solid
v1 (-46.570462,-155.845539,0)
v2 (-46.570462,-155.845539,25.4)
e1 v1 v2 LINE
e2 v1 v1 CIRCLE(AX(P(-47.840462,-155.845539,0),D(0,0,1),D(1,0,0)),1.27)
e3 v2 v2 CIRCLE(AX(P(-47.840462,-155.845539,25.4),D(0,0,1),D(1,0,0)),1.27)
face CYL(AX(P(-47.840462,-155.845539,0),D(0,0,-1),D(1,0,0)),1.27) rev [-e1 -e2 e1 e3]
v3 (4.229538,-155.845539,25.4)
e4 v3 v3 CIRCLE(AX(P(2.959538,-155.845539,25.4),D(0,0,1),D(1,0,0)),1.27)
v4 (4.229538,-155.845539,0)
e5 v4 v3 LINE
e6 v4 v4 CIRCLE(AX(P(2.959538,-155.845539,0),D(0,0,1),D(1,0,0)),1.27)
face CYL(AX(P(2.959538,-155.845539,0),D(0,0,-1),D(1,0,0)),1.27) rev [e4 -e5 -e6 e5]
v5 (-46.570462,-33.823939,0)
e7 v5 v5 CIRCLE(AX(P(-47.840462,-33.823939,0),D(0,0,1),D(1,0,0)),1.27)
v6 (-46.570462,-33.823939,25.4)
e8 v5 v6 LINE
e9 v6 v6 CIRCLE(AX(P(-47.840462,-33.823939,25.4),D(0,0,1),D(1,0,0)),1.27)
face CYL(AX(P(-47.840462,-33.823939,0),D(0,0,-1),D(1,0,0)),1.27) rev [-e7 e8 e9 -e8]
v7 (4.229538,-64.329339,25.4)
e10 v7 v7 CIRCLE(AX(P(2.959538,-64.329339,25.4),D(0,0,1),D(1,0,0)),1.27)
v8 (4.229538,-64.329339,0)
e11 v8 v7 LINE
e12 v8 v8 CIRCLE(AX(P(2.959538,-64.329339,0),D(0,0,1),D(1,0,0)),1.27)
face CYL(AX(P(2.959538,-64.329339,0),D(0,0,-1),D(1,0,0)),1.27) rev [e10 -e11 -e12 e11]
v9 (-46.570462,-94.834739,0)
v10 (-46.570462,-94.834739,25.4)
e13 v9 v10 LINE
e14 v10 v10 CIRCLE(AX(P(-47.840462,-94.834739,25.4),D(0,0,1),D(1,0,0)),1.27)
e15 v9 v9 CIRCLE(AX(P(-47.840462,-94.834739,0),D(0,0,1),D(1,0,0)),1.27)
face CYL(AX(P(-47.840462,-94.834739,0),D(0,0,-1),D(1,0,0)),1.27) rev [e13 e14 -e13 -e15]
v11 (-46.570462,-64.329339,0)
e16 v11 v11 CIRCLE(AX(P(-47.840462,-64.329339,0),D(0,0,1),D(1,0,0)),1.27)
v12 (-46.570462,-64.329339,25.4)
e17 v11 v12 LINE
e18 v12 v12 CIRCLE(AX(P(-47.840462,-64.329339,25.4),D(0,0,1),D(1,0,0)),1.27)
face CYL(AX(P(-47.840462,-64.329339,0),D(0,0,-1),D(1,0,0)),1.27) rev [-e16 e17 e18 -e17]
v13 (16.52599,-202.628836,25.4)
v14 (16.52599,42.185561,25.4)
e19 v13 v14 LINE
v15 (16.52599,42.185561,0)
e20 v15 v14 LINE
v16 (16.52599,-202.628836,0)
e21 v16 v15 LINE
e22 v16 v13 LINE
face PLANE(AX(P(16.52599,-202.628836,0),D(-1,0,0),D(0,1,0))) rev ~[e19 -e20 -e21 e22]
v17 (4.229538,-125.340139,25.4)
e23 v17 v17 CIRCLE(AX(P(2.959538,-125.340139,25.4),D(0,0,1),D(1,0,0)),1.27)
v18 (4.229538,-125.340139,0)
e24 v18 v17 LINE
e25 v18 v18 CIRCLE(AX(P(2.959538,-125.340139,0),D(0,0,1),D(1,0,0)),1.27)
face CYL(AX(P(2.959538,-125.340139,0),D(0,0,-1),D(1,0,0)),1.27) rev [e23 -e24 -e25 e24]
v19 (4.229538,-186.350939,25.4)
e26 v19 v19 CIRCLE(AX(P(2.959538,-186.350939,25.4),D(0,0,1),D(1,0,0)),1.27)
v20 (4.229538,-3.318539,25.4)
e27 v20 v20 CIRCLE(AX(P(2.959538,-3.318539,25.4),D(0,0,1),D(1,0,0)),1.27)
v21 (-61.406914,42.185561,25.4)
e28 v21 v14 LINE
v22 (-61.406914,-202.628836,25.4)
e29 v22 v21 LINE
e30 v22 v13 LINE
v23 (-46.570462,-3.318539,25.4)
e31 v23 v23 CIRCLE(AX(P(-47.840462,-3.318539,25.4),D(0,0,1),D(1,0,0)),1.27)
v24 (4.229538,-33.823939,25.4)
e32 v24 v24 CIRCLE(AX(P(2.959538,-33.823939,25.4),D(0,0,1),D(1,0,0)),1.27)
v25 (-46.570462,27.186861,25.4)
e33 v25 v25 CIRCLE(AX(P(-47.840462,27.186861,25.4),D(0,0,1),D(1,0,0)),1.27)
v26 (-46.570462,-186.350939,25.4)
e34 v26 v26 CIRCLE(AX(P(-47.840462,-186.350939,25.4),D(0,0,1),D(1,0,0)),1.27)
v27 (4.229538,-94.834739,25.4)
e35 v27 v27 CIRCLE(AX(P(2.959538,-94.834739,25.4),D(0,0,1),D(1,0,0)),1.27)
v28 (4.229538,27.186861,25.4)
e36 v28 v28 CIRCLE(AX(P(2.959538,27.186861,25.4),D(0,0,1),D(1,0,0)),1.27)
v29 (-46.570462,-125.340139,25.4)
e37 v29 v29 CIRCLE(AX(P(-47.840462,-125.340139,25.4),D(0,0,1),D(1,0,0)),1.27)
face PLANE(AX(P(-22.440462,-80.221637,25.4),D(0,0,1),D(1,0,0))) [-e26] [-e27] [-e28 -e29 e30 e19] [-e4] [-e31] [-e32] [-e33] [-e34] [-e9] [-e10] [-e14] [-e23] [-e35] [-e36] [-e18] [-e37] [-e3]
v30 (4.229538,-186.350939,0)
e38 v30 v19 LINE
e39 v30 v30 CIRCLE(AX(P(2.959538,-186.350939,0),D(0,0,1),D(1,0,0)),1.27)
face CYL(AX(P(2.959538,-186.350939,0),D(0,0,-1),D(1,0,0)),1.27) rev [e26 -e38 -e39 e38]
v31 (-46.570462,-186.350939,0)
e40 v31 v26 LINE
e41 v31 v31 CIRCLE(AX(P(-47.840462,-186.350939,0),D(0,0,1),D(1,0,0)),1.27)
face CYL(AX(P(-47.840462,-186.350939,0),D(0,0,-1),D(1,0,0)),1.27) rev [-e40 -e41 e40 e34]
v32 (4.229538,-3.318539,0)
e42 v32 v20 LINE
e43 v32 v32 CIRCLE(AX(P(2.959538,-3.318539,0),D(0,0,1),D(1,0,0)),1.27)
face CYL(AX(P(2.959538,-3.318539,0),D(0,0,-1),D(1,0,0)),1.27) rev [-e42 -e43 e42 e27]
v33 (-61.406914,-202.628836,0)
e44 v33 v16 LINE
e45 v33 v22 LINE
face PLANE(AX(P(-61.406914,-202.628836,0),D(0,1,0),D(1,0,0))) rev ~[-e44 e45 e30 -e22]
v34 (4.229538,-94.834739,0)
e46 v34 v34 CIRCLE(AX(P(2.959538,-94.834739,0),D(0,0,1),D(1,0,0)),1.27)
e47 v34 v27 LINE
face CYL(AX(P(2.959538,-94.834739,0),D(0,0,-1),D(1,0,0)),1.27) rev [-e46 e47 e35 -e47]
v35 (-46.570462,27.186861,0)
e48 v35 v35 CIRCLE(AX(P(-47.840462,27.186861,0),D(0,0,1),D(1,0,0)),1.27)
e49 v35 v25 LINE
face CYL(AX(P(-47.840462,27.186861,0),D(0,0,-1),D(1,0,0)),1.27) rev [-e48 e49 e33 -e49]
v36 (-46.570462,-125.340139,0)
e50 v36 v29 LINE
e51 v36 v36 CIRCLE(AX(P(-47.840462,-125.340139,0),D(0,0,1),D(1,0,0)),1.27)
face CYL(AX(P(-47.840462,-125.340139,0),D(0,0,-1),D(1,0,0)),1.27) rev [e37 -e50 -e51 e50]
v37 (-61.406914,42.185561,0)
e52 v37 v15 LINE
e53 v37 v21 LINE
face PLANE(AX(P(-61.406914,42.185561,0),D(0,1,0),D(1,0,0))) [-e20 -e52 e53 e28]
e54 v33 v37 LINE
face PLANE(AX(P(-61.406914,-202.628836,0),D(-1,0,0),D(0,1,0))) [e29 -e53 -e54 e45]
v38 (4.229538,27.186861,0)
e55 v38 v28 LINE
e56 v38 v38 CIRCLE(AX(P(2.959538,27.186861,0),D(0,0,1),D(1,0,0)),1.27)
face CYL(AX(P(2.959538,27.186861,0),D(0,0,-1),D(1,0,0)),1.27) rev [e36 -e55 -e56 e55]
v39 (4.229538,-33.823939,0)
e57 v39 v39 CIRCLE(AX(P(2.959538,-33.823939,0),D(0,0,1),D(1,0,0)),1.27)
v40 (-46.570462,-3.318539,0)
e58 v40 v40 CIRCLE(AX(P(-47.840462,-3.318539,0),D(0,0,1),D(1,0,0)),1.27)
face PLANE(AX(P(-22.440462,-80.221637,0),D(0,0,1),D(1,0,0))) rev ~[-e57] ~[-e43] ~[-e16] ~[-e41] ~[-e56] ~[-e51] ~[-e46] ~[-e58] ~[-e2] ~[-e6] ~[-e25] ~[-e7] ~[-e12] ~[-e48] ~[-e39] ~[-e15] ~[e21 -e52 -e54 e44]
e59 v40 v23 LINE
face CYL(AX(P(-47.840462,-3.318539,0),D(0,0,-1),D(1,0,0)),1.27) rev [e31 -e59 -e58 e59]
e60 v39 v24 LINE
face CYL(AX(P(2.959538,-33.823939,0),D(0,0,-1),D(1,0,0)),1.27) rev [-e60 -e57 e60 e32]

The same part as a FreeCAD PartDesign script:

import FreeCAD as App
import Part
import Sketcher
from FreeCAD import Vector
Q = App.Units.Quantity


def add_polygon(sketch, points):
    """Adds a closed chain of lines whose ends are joined by coincident constraints."""
    first, n = sketch.GeometryCount, len(points)
    for a, b in zip(points, points[1:] + points[:1]):
        sketch.addGeometry(Part.LineSegment(App.Vector(*a, 0), App.Vector(*b, 0)), False)
    for i in range(n):
        sketch.addConstraint(Sketcher.Constraint("Coincident", first + i, 2, first + (i + 1) % n, 1))

doc = App.newDocument("Part")
body = doc.addObject("PartDesign::Body", "Body")

sketch1 = body.newObject("Sketcher::SketchObject", "Sketch")
sketch1.AttachmentSupport = (doc.getObject("XY_Plane"), [""])
sketch1.MapMode = "FlatFace"
add_polygon(sketch1, [(-61.4, 42.2), (-61.4, -202.6), (16.5, -202.6), (16.5, 42.2)])
sketch1.addGeometry(Part.Circle(Vector(-47.8, -186.4, 0), Vector(0, 0, 1), 1.3), False)
sketch1.addGeometry(Part.Circle(Vector(-47.8, -155.8, 0), Vector(0, 0, 1), 1.3), False)
sketch1.addGeometry(Part.Circle(Vector(-47.8, -125.3, 0), Vector(0, 0, 1), 1.3), False)
sketch1.addGeometry(Part.Circle(Vector(-47.8, -94.8, 0), Vector(0, 0, 1), 1.3), False)
sketch1.addGeometry(Part.Circle(Vector(3, -186.4, 0), Vector(0, 0, 1), 1.3), False)
sketch1.addGeometry(Part.Circle(Vector(3, -155.8, 0), Vector(0, 0, 1), 1.3), False)
sketch1.addGeometry(Part.Circle(Vector(3, -125.3, 0), Vector(0, 0, 1), 1.3), False)
sketch1.addGeometry(Part.Circle(Vector(3, -94.8, 0), Vector(0, 0, 1), 1.3), False)
sketch1.addGeometry(Part.Circle(Vector(-47.8, -64.3, 0), Vector(0, 0, 1), 1.3), False)
sketch1.addGeometry(Part.Circle(Vector(-47.8, -33.8, 0), Vector(0, 0, 1), 1.3), False)
sketch1.addGeometry(Part.Circle(Vector(-47.8, -3.3, 0), Vector(0, 0, 1), 1.3), False)
sketch1.addGeometry(Part.Circle(Vector(-47.8, 27.2, 0), Vector(0, 0, 1), 1.3), False)
sketch1.addGeometry(Part.Circle(Vector(3, -64.3, 0), Vector(0, 0, 1), 1.3), False)
sketch1.addGeometry(Part.Circle(Vector(3, -33.8, 0), Vector(0, 0, 1), 1.3), False)
sketch1.addGeometry(Part.Circle(Vector(3, -3.3, 0), Vector(0, 0, 1), 1.3), False)
sketch1.addGeometry(Part.Circle(Vector(3, 27.2, 0), Vector(0, 0, 1), 1.3), False)
sketch1.addConstraint(Sketcher.Constraint("Vertical", 0))
sketch1.addConstraint(Sketcher.Constraint("Horizontal", 1))
sketch1.addConstraint(Sketcher.Constraint("Vertical", 2))
sketch1.addConstraint(Sketcher.Constraint("Horizontal", 3))
sketch1.addConstraint(Sketcher.Constraint("Equal", 4, 5))
sketch1.addConstraint(Sketcher.Constraint("Equal", 5, 6))
sketch1.addConstraint(Sketcher.Constraint("Equal", 6, 7))
sketch1.addConstraint(Sketcher.Constraint("Equal", 7, 8))
sketch1.addConstraint(Sketcher.Constraint("Equal", 8, 9))
sketch1.addConstraint(Sketcher.Constraint("Equal", 9, 10))
sketch1.addConstraint(Sketcher.Constraint("Equal", 10, 11))
sketch1.addConstraint(Sketcher.Constraint("Equal", 11, 12))
sketch1.addConstraint(Sketcher.Constraint("Equal", 12, 13))
sketch1.addConstraint(Sketcher.Constraint("Equal", 13, 14))
sketch1.addConstraint(Sketcher.Constraint("Equal", 14, 15))
sketch1.addConstraint(Sketcher.Constraint("Equal", 15, 16))
sketch1.addConstraint(Sketcher.Constraint("Equal", 16, 17))
sketch1.addConstraint(Sketcher.Constraint("Equal", 17, 18))
sketch1.addConstraint(Sketcher.Constraint("Equal", 18, 19))
sketch1.addConstraint(Sketcher.Constraint("Horizontal", 4, 3, 8, 3))
sketch1.addConstraint(Sketcher.Constraint("Horizontal", 5, 3, 9, 3))
sketch1.addConstraint(Sketcher.Constraint("Horizontal", 6, 3, 10, 3))
sketch1.addConstraint(Sketcher.Constraint("Horizontal", 7, 3, 11, 3))
sketch1.addConstraint(Sketcher.Constraint("Horizontal", 12, 3, 16, 3))
sketch1.addConstraint(Sketcher.Constraint("Horizontal", 13, 3, 17, 3))
sketch1.addConstraint(Sketcher.Constraint("Horizontal", 14, 3, 18, 3))
sketch1.addConstraint(Sketcher.Constraint("Horizontal", 15, 3, 19, 3))
sketch1.addConstraint(Sketcher.Constraint("Vertical", 4, 3, 5, 3))
sketch1.addConstraint(Sketcher.Constraint("Vertical", 5, 3, 6, 3))
sketch1.addConstraint(Sketcher.Constraint("Vertical", 6, 3, 7, 3))
sketch1.addConstraint(Sketcher.Constraint("Vertical", 8, 3, 9, 3))
sketch1.addConstraint(Sketcher.Constraint("Vertical", 9, 3, 10, 3))
sketch1.addConstraint(Sketcher.Constraint("Vertical", 10, 3, 11, 3))
sketch1.addConstraint(Sketcher.Constraint("Vertical", 7, 3, 12, 3))
sketch1.addConstraint(Sketcher.Constraint("Vertical", 12, 3, 13, 3))
sketch1.addConstraint(Sketcher.Constraint("Vertical", 13, 3, 14, 3))
sketch1.addConstraint(Sketcher.Constraint("Vertical", 14, 3, 15, 3))
sketch1.addConstraint(Sketcher.Constraint("Vertical", 11, 3, 16, 3))
sketch1.addConstraint(Sketcher.Constraint("Vertical", 16, 3, 17, 3))
sketch1.addConstraint(Sketcher.Constraint("Vertical", 17, 3, 18, 3))
sketch1.addConstraint(Sketcher.Constraint("Vertical", 18, 3, 19, 3))
sketch1.addConstraint(Sketcher.Constraint("Diameter", 4, Q("0.1 in")))
sketch1.addConstraint(Sketcher.Constraint("DistanceX", 4, 3, 8, 3, Q("2 in")))
sketch1.addConstraint(Sketcher.Constraint("DistanceY", 4, 3, 5, 3, Q("1.201 in")))
sketch1.addConstraint(Sketcher.Constraint("DistanceY", 5, 3, 6, 3, Q("1.201 in")))
sketch1.addConstraint(Sketcher.Constraint("DistanceY", 6, 3, 7, 3, Q("1.201 in")))
sketch1.addConstraint(Sketcher.Constraint("DistanceY", 7, 3, 12, 3, Q("1.201 in")))
sketch1.addConstraint(Sketcher.Constraint("DistanceY", 12, 3, 13, 3, Q("1.201 in")))
sketch1.addConstraint(Sketcher.Constraint("DistanceY", 13, 3, 14, 3, Q("1.201 in")))
sketch1.addConstraint(Sketcher.Constraint("DistanceY", 14, 3, 15, 3, Q("1.201 in")))
sketch1.addConstraint(Sketcher.Constraint("DistanceY", 19, 3, 2, 2, Q("0.5905 in")))
sketch1.addConstraint(Sketcher.Constraint("DistanceX", 1, 1, 1, 2, Q("77.932905 mm")))
sketch1.addConstraint(Sketcher.Constraint("DistanceY", 0, 2, 0, 1, Q("244.814397 mm")))
sketch1.addConstraint(Sketcher.Constraint("DistanceY", 4, 3, -1, 1, Q("186.350939 mm")))
sketch1.addConstraint(Sketcher.Constraint("DistanceX", -1, 1, 1, 2, Q("16.52599 mm")))
sketch1.addConstraint(Sketcher.Constraint("DistanceX", 4, 3, -1, 1, Q("47.840462 mm")))
pad1 = body.newObject("PartDesign::Pad", "Pad")
pad1.Profile = sketch1
pad1.Length = Q("1 in")

doc.recompute()
